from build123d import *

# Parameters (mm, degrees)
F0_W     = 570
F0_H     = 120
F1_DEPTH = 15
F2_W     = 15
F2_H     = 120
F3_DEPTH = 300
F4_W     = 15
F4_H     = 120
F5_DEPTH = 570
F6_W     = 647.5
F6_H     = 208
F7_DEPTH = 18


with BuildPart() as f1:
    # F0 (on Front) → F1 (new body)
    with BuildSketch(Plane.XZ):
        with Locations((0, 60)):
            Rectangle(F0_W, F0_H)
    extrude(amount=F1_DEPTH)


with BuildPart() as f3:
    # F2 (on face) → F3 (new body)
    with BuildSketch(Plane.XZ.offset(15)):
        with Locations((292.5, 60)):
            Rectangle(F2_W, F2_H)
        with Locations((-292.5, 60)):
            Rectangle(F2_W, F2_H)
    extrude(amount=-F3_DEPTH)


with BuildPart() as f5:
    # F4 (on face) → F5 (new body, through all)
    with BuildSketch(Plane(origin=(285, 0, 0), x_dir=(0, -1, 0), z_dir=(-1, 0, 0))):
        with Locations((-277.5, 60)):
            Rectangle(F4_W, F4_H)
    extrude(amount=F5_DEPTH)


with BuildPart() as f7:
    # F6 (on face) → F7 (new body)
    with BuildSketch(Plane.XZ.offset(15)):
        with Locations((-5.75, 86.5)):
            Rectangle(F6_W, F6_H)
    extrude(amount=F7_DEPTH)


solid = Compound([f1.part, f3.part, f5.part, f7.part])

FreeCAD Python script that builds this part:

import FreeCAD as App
import Part
import Sketcher
from FreeCAD import Vector
Q = App.Units.Quantity


def add_polygon(sketch, points):
    """Adds a closed chain of lines whose ends are joined by coincident constraints."""
    first, n = sketch.GeometryCount, len(points)
    for a, b in zip(points, points[1:] + points[:1]):
        sketch.addGeometry(Part.LineSegment(App.Vector(*a, 0), App.Vector(*b, 0)), False)
    for i in range(n):
        sketch.addConstraint(Sketcher.Constraint("Coincident", first + i, 2, first + (i + 1) % n, 1))

doc = App.newDocument("Part")
body = doc.addObject("PartDesign::Body", "Body")

sketch1 = doc.addObject("Sketcher::SketchObject", "Sketch")
body.addObject(sketch1)
sketch1.AttachmentSupport = (doc.XZ_Plane, [""])
sketch1.MapMode = "FlatFace"
add_polygon(sketch1, [(-285, 120), (-285, 0), (285, 0), (285, 120)])
sketch1.addConstraint(Sketcher.Constraint("Vertical", 0))
sketch1.addConstraint(Sketcher.Constraint("Horizontal", 1))
sketch1.addConstraint(Sketcher.Constraint("Vertical", 2))
sketch1.addConstraint(Sketcher.Constraint("Horizontal", 3))
sketch1.addConstraint(Sketcher.Constraint("Symmetric", 0, 2, 1, 2, -1, 1))
sketch1.addConstraint(Sketcher.Constraint("DistanceX", 1, 1, 1, 2, Q("570 mm")))
sketch1.addConstraint(Sketcher.Constraint("DistanceY", 0, 2, 0, 1, Q("120 mm")))
pad1 = doc.addObject("PartDesign::Pad", "Pad")
body.addObject(pad1)
pad1.Profile = sketch1
pad1.Length = 15
body2 = doc.addObject("PartDesign::Body", "Body001")
body2.AllowCompound = True

sketch2 = doc.addObject("Sketcher::SketchObject", "Sketch001")
body2.addObject(sketch2)
sketch2.AttachmentSupport = (doc.getObject("XZ_Plane001"), [""])
sketch2.MapMode = "FlatFace"
sketch2.AttachmentOffset = App.Placement(Vector(0, 0, 15), App.Rotation())
add_polygon(sketch2, [(285, 120), (285, 0), (300, 0), (300, 120)])
add_polygon(sketch2, [(-300, 120), (-300, 0), (-285, 0), (-285, 120)])
sketch2.addConstraint(Sketcher.Constraint("Vertical", 0))
sketch2.addConstraint(Sketcher.Constraint("Horizontal", 1))
sketch2.addConstraint(Sketcher.Constraint("Vertical", 2))
sketch2.addConstraint(Sketcher.Constraint("Horizontal", 3))
sketch2.addConstraint(Sketcher.Constraint("Vertical", 4))
sketch2.addConstraint(Sketcher.Constraint("Horizontal", 5))
sketch2.addConstraint(Sketcher.Constraint("Vertical", 6))
sketch2.addConstraint(Sketcher.Constraint("Horizontal", 7))
sketch2.addConstraint(Sketcher.Constraint("Symmetric", 1, 2, 4, 2, -1, 1))
sketch2.addConstraint(Sketcher.Constraint("Symmetric", 0, 2, 5, 2, -2))
sketch2.addConstraint(Sketcher.Constraint("Horizontal", 3, 2, 6, 2))
sketch2.addConstraint(Sketcher.Constraint("DistanceX", 1, 1, 1, 2, Q("15 mm")))
sketch2.addConstraint(Sketcher.Constraint("DistanceY", 0, 2, 0, 1, Q("120 mm")))
sketch2.addConstraint(Sketcher.Constraint("DistanceX", -1, 1, 0, 2, Q("285 mm")))
pad2 = doc.addObject("PartDesign::Pad", "Pad001")
body2.addObject(pad2)
pad2.Profile = sketch2
pad2.Length = 300
pad2.Reversed = True
body3 = doc.addObject("PartDesign::Body", "Body002")

sketch3 = doc.addObject("Sketcher::SketchObject", "Sketch002")
body3.addObject(sketch3)
sketch3.AttachmentSupport = (doc.getObject("YZ_Plane002"), [""])
sketch3.MapMode = "FlatFace"
sketch3.AttachmentOffset = App.Placement(Vector(0, 0, 285), App.Rotation())
add_polygon(sketch3, [(285, 120), (285, 0), (270, 0), (270, 120)])
sketch3.addConstraint(Sketcher.Constraint("Vertical", 0))
sketch3.addConstraint(Sketcher.Constraint("Horizontal", 1))
sketch3.addConstraint(Sketcher.Constraint("Vertical", 2))
sketch3.addConstraint(Sketcher.Constraint("Horizontal", 3))
sketch3.addConstraint(Sketcher.Constraint("PointOnObject", 0, 2, -1))
sketch3.addConstraint(Sketcher.Constraint("DistanceX", 1, 2, 1, 1, Q("15 mm")))
sketch3.addConstraint(Sketcher.Constraint("DistanceY", 0, 2, 0, 1, Q("120 mm")))
sketch3.addConstraint(Sketcher.Constraint("DistanceX", -1, 1, 0, 2, Q("285 mm")))
pad3 = doc.addObject("PartDesign::Pad", "Pad002")
body3.addObject(pad3)
pad3.Profile = sketch3
pad3.Length = 570
pad3.Reversed = True
body4 = doc.addObject("PartDesign::Body", "Body003")

sketch4 = doc.addObject("Sketcher::SketchObject", "Sketch003")
body4.addObject(sketch4)
sketch4.AttachmentSupport = (doc.getObject("XZ_Plane003"), [""])
sketch4.MapMode = "FlatFace"
sketch4.AttachmentOffset = App.Placement(Vector(0, 0, 15), App.Rotation())
add_polygon(sketch4, [(-330, 190), (-330, -18), (318, -18), (318, 190)])
sketch4.addConstraint(Sketcher.Constraint("Vertical", 0))
sketch4.addConstraint(Sketcher.Constraint("Horizontal", 1))
sketch4.addConstraint(Sketcher.Constraint("Vertical", 2))
sketch4.addConstraint(Sketcher.Constraint("Horizontal", 3))
sketch4.addConstraint(Sketcher.Constraint("DistanceY", 0, 2, 0, 1, Q("208 mm")))
sketch4.addConstraint(Sketcher.Constraint("DistanceX", 1, 1, 1, 2, Q("647.5 mm")))
sketch4.addConstraint(Sketcher.Constraint("DistanceX", -1, 1, 1, 2, Q("318 mm")))
sketch4.addConstraint(Sketcher.Constraint("DistanceY", 0, 2, -1, 1, Q("17.5 mm")))
pad4 = doc.addObject("PartDesign::Pad", "Pad003")
body4.addObject(pad4)
pad4.Profile = sketch4
pad4.Length = 18

doc.recompute()
